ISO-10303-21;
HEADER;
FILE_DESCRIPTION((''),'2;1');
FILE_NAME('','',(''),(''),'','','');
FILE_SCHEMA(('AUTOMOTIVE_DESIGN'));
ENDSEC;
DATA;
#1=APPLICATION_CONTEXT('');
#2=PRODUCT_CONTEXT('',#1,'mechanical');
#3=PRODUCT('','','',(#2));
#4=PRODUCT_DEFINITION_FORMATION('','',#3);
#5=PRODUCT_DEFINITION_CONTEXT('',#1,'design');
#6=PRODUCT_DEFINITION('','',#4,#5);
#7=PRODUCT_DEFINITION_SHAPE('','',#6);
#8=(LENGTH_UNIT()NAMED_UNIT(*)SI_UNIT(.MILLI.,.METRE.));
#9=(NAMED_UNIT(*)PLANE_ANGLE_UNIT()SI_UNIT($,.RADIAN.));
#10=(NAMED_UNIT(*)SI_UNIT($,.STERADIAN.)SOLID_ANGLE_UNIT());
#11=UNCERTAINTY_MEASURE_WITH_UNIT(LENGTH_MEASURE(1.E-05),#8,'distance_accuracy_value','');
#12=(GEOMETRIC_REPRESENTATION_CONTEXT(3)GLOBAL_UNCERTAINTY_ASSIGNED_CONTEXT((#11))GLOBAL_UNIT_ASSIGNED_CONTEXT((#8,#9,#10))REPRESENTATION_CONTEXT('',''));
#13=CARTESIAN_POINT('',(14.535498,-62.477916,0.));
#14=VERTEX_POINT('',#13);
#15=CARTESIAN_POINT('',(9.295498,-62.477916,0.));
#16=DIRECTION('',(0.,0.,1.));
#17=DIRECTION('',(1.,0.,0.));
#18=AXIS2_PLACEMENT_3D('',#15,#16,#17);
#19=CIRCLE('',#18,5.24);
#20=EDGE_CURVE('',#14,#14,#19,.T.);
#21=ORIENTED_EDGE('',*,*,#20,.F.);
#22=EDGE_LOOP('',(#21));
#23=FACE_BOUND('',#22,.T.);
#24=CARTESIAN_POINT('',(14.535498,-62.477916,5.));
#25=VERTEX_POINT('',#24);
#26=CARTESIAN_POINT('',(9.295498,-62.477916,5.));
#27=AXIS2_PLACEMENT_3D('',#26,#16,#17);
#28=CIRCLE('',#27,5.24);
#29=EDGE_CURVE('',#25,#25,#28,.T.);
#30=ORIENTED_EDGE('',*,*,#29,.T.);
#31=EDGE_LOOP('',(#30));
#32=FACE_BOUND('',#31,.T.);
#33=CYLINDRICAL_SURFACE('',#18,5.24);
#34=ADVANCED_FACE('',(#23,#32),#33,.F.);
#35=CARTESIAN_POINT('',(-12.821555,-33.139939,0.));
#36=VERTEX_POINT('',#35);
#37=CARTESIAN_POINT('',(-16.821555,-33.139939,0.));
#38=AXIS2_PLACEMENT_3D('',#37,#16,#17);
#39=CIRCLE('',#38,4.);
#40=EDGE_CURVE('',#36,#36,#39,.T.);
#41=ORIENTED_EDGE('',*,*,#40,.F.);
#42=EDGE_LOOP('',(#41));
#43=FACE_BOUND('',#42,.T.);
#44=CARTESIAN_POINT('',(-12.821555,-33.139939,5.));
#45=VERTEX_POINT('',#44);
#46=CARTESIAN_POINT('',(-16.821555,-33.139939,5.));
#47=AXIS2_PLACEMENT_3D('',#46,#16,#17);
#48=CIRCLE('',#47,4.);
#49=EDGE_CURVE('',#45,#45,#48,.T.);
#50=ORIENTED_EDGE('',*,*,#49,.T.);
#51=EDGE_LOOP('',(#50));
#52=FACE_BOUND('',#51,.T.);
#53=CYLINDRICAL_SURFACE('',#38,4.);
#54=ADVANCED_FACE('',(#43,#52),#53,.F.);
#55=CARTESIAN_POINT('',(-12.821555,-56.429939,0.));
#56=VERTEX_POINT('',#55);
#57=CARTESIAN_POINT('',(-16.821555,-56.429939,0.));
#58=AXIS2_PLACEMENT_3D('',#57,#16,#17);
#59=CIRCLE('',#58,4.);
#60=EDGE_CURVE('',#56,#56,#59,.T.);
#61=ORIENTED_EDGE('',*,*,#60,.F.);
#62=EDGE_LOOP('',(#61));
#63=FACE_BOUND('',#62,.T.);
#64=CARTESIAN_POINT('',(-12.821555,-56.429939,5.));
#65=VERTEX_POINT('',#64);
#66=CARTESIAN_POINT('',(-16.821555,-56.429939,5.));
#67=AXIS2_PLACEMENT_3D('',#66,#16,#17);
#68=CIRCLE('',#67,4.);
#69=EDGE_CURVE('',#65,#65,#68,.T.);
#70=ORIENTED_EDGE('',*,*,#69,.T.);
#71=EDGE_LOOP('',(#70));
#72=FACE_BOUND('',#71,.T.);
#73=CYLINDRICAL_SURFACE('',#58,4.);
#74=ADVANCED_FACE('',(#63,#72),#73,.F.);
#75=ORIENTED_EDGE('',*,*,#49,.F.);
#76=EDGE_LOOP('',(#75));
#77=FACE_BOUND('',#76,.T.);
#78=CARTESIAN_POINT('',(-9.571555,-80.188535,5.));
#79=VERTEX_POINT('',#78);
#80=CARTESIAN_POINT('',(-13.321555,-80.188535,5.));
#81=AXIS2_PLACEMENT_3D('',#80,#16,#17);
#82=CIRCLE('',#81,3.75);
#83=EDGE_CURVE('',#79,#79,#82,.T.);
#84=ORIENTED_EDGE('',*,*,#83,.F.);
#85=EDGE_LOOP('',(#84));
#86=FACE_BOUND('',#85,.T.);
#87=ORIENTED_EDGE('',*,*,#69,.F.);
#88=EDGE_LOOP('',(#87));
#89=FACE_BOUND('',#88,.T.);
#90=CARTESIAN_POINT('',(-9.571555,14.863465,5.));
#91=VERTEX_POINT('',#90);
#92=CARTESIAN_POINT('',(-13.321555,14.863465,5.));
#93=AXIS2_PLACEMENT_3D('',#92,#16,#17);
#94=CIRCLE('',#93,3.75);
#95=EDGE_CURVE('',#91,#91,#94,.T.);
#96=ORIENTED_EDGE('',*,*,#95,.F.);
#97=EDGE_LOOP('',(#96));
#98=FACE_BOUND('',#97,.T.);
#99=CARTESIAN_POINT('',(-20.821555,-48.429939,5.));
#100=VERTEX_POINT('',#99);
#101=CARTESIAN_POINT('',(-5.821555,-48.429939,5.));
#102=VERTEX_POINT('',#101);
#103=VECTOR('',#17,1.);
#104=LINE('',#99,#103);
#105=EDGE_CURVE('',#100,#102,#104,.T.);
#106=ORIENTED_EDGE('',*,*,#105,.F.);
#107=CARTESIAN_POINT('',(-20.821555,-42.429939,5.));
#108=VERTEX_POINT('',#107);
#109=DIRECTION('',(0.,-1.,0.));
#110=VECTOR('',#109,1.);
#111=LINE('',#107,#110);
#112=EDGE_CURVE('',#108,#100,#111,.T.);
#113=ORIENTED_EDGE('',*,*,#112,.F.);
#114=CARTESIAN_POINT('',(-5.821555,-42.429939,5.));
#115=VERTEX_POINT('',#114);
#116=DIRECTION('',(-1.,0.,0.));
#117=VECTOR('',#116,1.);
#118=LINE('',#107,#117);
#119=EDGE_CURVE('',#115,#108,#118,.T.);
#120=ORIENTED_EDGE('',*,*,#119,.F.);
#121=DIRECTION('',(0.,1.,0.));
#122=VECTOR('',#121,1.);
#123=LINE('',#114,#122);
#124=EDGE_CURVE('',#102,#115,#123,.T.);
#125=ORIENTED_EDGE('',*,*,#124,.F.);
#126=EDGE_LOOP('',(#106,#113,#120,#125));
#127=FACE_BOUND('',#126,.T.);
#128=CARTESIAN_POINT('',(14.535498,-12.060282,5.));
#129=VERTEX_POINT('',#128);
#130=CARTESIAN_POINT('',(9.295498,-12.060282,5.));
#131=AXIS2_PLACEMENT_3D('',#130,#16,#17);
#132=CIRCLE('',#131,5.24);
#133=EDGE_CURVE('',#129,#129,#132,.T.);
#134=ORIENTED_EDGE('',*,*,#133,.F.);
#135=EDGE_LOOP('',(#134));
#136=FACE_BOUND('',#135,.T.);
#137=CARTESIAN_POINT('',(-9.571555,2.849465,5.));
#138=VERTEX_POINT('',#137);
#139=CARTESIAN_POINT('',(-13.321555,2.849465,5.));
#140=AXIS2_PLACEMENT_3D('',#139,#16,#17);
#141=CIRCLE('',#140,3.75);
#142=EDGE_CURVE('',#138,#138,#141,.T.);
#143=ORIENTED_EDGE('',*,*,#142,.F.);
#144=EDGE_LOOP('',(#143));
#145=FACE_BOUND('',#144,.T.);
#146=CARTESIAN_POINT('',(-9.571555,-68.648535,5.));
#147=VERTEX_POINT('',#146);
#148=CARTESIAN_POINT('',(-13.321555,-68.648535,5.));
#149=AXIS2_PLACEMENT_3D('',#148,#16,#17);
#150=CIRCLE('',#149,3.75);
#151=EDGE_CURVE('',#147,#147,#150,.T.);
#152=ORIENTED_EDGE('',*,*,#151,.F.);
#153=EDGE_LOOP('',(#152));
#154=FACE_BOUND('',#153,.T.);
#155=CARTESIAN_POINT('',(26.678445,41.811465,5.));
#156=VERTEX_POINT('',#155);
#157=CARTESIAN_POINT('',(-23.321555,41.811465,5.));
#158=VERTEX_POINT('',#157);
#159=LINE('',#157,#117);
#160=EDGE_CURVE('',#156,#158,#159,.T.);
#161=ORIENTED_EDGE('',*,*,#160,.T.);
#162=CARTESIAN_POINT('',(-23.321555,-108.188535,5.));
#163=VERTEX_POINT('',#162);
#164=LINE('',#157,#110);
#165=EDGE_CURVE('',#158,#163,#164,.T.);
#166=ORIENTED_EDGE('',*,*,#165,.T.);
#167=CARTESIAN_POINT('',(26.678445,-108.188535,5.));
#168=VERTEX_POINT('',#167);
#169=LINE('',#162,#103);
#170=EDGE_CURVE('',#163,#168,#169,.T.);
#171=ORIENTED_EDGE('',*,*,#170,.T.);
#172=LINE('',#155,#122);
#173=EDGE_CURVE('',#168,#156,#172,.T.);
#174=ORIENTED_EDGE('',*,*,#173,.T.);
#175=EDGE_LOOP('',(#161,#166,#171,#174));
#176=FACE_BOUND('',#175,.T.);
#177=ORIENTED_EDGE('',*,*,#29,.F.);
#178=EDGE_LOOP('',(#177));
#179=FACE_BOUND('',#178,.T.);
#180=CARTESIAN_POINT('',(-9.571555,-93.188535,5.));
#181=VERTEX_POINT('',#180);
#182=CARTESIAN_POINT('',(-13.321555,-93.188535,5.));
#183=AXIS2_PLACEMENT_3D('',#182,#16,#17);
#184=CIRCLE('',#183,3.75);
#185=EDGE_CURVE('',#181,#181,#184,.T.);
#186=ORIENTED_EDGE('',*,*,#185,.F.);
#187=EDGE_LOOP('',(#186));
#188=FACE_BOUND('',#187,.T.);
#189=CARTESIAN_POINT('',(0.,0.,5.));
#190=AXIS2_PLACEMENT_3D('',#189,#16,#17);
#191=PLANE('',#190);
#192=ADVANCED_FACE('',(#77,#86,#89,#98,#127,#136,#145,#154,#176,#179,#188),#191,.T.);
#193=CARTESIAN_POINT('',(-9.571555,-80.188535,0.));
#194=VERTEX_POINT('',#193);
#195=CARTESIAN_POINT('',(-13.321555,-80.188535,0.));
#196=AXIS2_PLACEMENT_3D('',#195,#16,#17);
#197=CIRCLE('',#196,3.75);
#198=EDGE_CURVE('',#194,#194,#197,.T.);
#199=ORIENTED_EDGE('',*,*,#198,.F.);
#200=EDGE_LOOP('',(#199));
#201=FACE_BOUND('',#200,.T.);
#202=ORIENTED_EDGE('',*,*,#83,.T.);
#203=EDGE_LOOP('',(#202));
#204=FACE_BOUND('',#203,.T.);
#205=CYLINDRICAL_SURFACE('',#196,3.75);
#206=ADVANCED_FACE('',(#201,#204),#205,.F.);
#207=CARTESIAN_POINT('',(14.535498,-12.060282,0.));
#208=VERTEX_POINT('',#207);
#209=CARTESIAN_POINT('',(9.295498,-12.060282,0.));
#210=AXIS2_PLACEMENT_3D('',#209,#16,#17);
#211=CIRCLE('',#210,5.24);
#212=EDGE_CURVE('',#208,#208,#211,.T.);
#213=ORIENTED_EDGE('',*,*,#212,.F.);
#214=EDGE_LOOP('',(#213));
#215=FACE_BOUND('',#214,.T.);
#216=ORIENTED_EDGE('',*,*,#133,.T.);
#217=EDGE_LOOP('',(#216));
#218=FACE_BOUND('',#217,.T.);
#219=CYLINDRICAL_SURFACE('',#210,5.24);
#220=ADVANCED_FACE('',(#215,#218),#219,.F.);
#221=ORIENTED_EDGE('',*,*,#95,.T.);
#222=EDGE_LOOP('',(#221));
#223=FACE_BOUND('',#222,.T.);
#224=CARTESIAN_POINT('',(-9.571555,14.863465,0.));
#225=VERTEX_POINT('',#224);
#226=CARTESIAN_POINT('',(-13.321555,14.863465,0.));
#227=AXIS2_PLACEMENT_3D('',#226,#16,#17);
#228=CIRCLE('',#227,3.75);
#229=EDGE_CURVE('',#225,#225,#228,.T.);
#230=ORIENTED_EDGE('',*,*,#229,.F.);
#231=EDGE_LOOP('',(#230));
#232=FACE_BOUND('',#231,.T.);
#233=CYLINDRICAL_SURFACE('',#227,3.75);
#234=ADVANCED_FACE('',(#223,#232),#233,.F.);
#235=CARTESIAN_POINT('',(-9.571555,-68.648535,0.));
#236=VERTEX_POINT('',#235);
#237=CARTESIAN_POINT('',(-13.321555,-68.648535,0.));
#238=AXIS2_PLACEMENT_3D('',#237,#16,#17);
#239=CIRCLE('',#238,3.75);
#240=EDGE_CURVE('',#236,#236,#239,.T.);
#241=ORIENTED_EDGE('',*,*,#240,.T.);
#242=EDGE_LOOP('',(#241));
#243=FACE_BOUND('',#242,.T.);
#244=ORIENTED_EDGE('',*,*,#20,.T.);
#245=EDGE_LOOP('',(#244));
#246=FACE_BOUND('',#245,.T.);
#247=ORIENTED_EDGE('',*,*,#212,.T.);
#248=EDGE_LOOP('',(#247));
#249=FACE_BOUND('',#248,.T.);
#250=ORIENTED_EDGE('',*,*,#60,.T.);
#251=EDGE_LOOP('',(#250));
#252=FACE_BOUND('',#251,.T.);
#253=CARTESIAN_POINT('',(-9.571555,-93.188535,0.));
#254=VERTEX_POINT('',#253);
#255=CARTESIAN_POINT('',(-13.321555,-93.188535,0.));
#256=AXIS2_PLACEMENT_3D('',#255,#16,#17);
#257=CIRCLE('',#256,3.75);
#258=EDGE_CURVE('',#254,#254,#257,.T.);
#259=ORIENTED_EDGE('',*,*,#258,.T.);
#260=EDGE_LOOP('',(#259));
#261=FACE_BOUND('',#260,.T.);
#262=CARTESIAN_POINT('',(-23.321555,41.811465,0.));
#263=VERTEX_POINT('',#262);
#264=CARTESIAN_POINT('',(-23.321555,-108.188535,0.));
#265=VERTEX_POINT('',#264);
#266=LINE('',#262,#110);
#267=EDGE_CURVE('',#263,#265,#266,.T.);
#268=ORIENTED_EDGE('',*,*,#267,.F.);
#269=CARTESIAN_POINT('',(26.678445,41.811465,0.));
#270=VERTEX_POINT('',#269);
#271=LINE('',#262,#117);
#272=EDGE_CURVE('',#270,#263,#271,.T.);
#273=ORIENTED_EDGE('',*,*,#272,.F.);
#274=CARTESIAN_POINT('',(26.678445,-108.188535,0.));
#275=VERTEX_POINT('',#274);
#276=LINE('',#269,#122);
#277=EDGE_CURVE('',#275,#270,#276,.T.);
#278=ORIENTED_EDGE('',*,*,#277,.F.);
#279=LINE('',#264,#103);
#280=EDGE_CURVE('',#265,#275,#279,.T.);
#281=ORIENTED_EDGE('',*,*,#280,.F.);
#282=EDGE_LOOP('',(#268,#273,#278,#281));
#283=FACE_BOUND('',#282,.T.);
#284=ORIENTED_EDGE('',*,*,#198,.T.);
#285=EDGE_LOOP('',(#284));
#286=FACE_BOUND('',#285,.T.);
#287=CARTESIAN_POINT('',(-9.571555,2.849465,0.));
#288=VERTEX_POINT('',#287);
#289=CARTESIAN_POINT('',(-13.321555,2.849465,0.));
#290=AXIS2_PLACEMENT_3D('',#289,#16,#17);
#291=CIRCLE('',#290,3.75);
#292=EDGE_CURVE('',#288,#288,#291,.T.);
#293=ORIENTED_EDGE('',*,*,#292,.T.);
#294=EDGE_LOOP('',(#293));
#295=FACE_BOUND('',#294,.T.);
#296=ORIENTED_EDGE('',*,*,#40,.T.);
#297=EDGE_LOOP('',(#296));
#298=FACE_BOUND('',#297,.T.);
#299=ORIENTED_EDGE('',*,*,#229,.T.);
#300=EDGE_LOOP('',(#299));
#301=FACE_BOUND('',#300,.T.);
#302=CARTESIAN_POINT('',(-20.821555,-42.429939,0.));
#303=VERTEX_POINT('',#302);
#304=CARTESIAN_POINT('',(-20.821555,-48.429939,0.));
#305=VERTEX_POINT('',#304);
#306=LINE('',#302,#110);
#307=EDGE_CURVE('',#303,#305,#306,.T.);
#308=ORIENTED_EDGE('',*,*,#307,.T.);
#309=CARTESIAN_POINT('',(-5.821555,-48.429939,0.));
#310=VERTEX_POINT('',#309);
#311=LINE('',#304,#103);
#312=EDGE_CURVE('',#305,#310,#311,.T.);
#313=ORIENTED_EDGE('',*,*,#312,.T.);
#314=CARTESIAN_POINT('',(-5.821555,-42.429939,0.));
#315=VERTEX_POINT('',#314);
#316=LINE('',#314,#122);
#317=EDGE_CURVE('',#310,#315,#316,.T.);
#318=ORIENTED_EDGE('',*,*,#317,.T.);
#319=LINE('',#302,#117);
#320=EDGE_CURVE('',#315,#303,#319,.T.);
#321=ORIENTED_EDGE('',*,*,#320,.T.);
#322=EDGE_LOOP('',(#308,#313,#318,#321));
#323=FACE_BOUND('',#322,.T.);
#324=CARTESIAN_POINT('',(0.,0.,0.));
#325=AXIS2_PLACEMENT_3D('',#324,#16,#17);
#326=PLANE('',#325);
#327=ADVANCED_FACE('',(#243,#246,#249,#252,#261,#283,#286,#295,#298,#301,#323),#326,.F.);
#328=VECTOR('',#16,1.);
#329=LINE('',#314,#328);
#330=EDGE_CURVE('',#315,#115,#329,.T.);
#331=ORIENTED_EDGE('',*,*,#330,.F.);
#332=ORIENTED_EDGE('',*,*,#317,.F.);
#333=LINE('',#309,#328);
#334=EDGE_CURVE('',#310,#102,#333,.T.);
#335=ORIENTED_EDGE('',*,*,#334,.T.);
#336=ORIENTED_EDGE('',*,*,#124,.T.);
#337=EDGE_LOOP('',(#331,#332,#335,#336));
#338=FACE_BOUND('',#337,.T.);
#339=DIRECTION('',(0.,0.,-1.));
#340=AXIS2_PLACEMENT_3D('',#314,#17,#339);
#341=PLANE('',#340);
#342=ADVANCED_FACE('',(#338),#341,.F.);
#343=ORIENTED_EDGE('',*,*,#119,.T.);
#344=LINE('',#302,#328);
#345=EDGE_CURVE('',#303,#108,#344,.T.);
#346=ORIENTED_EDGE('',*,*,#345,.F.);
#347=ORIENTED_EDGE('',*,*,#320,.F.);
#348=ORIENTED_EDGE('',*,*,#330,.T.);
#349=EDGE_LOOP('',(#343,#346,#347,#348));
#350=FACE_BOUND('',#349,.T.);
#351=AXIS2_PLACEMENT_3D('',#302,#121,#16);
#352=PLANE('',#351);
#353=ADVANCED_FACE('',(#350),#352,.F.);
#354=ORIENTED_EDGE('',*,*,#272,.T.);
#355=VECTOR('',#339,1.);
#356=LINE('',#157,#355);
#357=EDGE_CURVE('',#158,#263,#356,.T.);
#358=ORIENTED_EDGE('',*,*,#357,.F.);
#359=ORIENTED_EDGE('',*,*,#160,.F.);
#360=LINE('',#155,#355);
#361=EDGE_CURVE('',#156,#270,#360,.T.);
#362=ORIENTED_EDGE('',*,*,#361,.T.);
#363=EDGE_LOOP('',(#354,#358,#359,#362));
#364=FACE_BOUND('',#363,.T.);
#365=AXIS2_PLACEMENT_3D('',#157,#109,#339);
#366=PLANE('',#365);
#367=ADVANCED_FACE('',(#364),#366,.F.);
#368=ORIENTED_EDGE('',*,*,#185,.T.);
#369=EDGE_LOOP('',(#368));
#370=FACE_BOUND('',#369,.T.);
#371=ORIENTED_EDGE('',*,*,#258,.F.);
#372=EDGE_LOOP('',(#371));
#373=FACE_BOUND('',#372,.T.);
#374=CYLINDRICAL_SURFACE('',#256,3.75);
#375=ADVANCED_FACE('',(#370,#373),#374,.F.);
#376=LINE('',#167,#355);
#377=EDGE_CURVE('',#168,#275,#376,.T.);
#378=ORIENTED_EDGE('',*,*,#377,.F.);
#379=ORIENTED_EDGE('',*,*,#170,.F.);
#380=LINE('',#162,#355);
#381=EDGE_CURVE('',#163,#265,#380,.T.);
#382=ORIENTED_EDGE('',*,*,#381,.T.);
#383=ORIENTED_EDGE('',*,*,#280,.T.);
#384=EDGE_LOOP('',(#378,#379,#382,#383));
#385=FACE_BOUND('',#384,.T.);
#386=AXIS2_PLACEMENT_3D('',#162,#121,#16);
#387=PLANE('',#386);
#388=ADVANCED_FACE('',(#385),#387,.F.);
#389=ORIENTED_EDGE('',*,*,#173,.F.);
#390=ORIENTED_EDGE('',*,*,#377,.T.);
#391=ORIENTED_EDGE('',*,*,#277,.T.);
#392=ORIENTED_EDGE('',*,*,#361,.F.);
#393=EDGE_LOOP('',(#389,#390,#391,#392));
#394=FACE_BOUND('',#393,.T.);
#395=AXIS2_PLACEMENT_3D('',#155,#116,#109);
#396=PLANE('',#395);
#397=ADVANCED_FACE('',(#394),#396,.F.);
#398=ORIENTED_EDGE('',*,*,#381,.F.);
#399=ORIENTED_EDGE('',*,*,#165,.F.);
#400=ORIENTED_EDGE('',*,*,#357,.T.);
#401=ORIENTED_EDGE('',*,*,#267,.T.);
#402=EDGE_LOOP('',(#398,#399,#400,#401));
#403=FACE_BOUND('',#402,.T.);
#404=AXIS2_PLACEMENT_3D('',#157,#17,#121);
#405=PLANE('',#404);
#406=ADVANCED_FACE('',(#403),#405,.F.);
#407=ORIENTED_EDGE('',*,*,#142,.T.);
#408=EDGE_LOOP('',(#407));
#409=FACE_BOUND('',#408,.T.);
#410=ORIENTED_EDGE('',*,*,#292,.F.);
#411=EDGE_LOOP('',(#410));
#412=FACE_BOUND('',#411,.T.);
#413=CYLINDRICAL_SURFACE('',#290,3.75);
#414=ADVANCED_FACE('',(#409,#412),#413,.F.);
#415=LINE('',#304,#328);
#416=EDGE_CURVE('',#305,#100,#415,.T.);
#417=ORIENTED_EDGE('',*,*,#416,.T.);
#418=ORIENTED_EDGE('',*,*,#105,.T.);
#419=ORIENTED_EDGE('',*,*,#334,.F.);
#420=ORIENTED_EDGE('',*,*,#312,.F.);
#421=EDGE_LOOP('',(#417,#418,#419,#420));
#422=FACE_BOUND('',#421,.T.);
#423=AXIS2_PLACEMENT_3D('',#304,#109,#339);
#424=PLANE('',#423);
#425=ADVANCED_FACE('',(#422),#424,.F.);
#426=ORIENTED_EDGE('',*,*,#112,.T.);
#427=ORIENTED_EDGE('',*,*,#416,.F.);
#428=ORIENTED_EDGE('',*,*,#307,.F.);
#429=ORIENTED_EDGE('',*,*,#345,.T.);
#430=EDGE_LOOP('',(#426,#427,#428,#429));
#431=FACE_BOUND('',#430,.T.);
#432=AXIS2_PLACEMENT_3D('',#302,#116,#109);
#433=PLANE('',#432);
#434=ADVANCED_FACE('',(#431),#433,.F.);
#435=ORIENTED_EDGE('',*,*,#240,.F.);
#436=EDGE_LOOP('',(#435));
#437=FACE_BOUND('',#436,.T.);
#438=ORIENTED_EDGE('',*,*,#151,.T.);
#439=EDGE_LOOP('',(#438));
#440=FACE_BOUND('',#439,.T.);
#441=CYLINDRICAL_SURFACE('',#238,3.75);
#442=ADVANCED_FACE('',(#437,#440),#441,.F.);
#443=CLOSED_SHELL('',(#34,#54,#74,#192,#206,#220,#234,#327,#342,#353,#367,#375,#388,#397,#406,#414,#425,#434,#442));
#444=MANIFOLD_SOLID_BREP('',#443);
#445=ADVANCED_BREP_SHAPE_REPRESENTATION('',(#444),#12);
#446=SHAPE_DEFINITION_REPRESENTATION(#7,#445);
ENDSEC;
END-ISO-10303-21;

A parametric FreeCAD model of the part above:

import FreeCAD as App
import Part
import Sketcher


def add_polygon(sketch, points):
    """Adds a closed chain of lines whose ends are joined by coincident constraints."""
    first, n = sketch.GeometryCount, len(points)
    for a, b in zip(points, points[1:] + points[:1]):
        sketch.addGeometry(Part.LineSegment(App.Vector(*a, 0), App.Vector(*b, 0)), False)
    for i in range(n):
        sketch.addConstraint(Sketcher.Constraint("Coincident", first + i, 2, first + (i + 1) % n, 1))

doc = App.newDocument("Part")
body = doc.addObject("PartDesign::Body", "Body")

sketch1 = body.newObject("Sketcher::SketchObject", "Sketch")
sketch1.AttachmentSupport = (doc.getObject("XY_Plane"), [""])
sketch1.MapMode = "FlatFace"
add_polygon(sketch1, [(-23, 42), (-23, -108), (27, -108), (27, 42)])
sketch1.addConstraint(Sketcher.Constraint("Vertical", 0))
sketch1.addConstraint(Sketcher.Constraint("Horizontal", 1))
sketch1.addConstraint(Sketcher.Constraint("Vertical", 2))
sketch1.addConstraint(Sketcher.Constraint("Horizontal", 3))
sketch1.addConstraint(Sketcher.Constraint("DistanceX", 1, 1, 1, 2, 50.0))
sketch1.addConstraint(Sketcher.Constraint("DistanceY", 0, 2, 0, 1, 150.0))
sketch1.addConstraint(Sketcher.Constraint("DistanceX", 0, 2, -1, 1, 23.321555))
sketch1.addConstraint(Sketcher.Constraint("DistanceY", 0, 2, -1, 1, 108.188535))
pad1 = body.newObject("PartDesign::Pad", "Pad")
pad1.Profile = sketch1
pad1.Length = 5

sketch2 = body.newObject("Sketcher::SketchObject", "Sketch001")
sketch2.AttachmentSupport = (doc.getObject("XY_Plane"), [""])
sketch2.MapMode = "FlatFace"
sketch2.AttachmentOffset = App.Placement(App.Vector(0, 0, 5), App.Rotation())
sketch2.addGeometry(Part.Circle(App.Vector(-13.3, -93.2, 0), App.Vector(0, 0, 1), 3.8), False)
sketch2.addGeometry(Part.Circle(App.Vector(-13.3, -80.2, 0), App.Vector(0, 0, 1), 3.8), False)
sketch2.addGeometry(Part.Circle(App.Vector(-13.3, -68.6, 0), App.Vector(0, 0, 1), 3.8), False)
sketch2.addGeometry(Part.Circle(App.Vector(-13.3, 2.8, 0), App.Vector(0, 0, 1), 3.8), False)
sketch2.addGeometry(Part.Circle(App.Vector(-13.3, 14.9, 0), App.Vector(0, 0, 1), 3.8), False)
sketch2.addConstraint(Sketcher.Constraint("Equal", 0, 1))
sketch2.addConstraint(Sketcher.Constraint("Equal", 1, 2))
sketch2.addConstraint(Sketcher.Constraint("Equal", 2, 3))
sketch2.addConstraint(Sketcher.Constraint("Equal", 3, 4))
sketch2.addConstraint(Sketcher.Constraint("Vertical", 0, 3, 1, 3))
sketch2.addConstraint(Sketcher.Constraint("Vertical", 1, 3, 2, 3))
sketch2.addConstraint(Sketcher.Constraint("Vertical", 2, 3, 3, 3))
sketch2.addConstraint(Sketcher.Constraint("Vertical", 3, 3, 4, 3))
sketch2.addConstraint(Sketcher.Constraint("Diameter", 0, 7.5))
sketch2.addConstraint(Sketcher.Constraint("DistanceY", 0, 3, 1, 3, 13.0))
sketch2.addConstraint(Sketcher.Constraint("DistanceY", 1, 3, 2, 3, 11.54))
sketch2.addConstraint(Sketcher.Constraint("DistanceY", 2, 3, 3, 3, 71.498))
sketch2.addConstraint(Sketcher.Constraint("DistanceY", 3, 3, 4, 3, 12.014))
sketch2.addConstraint(Sketcher.Constraint("DistanceX", 0, 3, -1, 1, 13.321555))
sketch2.addConstraint(Sketcher.Constraint("DistanceY", 0, 3, -1, 1, 93.188535))
pocket1 = body.newObject("PartDesign::Pocket", "Pocket")
pocket1.Profile = sketch2
pocket1.Length = 5

sketch3 = body.newObject("Sketcher::SketchObject", "Sketch002")
sketch3.AttachmentSupport = (doc.getObject("XY_Plane"), [""])
sketch3.MapMode = "FlatFace"
sketch3.AttachmentOffset = App.Placement(App.Vector(0, 0, 5), App.Rotation())
sketch3.addGeometry(Part.Circle(App.Vector(-16.8, -56.4, 0), App.Vector(0, 0, 1), 4), False)
sketch3.addGeometry(Part.Circle(App.Vector(-16.8, -33.1, 0), App.Vector(0, 0, 1), 4), False)
sketch3.addConstraint(Sketcher.Constraint("Equal", 0, 1))
sketch3.addConstraint(Sketcher.Constraint("Vertical", 0, 3, 1, 3))
sketch3.addConstraint(Sketcher.Constraint("Diameter", 0, 8.0))
sketch3.addConstraint(Sketcher.Constraint("DistanceY", 0, 3, 1, 3, 23.29))
sketch3.addConstraint(Sketcher.Constraint("DistanceY", 0, 3, -1, 1, 56.429939))
sketch3.addConstraint(Sketcher.Constraint("DistanceX", 0, 3, -1, 1, 16.821555))
pocket2 = body.newObject("PartDesign::Pocket", "Pocket001")
pocket2.Profile = sketch3
pocket2.Length = 5

sketch4 = body.newObject("Sketcher::SketchObject", "Sketch003")
sketch4.AttachmentSupport = (doc.getObject("XY_Plane"), [""])
sketch4.MapMode = "FlatFace"
sketch4.AttachmentOffset = App.Placement(App.Vector(0, 0, 5), App.Rotation())
add_polygon(sketch4, [(-21, -42), (-21, -48), (-6, -48), (-6, -42)])
sketch4.addConstraint(Sketcher.Constraint("Vertical", 0))
sketch4.addConstraint(Sketcher.Constraint("Horizontal", 1))
sketch4.addConstraint(Sketcher.Constraint("Vertical", 2))
sketch4.addConstraint(Sketcher.Constraint("Horizontal", 3))
sketch4.addConstraint(Sketcher.Constraint("DistanceX", 1, 1, 1, 2, 15.0))
sketch4.addConstraint(Sketcher.Constraint("DistanceY", 0, 2, 0, 1, 6.0))
sketch4.addConstraint(Sketcher.Constraint("DistanceY", 0, 2, -1, 1, 48.429939))
sketch4.addConstraint(Sketcher.Constraint("DistanceX", 0, 2, -1, 1, 20.821555))
pocket3 = body.newObject("PartDesign::Pocket", "Pocket002")
pocket3.Profile = sketch4
pocket3.Length = 5

sketch5 = body.newObject("Sketcher::SketchObject", "Sketch004")
sketch5.AttachmentSupport = (doc.getObject("XY_Plane"), [""])
sketch5.MapMode = "FlatFace"
sketch5.AttachmentOffset = App.Placement(App.Vector(0, 0, 5), App.Rotation())
sketch5.addGeometry(Part.Circle(App.Vector(9, -12, 0), App.Vector(0, 0, 1), 5), False)
sketch5.addGeometry(Part.Circle(App.Vector(9, -62, 0), App.Vector(0, 0, 1), 5), False)
sketch5.addConstraint(Sketcher.Constraint("Equal", 0, 1))
sketch5.addConstraint(Sketcher.Constraint("Vertical", 0, 3, 1, 3))
sketch5.addConstraint(Sketcher.Constraint("Diameter", 0, 10.48))
sketch5.addConstraint(Sketcher.Constraint("DistanceY", 0, 3, -1, 1, 12.060282))
sketch5.addConstraint(Sketcher.Constraint("DistanceX", -1, 1, 0, 3, 9.295498))
sketch5.addConstraint(Sketcher.Constraint("DistanceY", 1, 3, -1, 1, 62.477916))
pocket4 = body.newObject("PartDesign::Pocket", "Pocket003")
pocket4.Profile = sketch5
pocket4.Length = 5

doc.recompute()
